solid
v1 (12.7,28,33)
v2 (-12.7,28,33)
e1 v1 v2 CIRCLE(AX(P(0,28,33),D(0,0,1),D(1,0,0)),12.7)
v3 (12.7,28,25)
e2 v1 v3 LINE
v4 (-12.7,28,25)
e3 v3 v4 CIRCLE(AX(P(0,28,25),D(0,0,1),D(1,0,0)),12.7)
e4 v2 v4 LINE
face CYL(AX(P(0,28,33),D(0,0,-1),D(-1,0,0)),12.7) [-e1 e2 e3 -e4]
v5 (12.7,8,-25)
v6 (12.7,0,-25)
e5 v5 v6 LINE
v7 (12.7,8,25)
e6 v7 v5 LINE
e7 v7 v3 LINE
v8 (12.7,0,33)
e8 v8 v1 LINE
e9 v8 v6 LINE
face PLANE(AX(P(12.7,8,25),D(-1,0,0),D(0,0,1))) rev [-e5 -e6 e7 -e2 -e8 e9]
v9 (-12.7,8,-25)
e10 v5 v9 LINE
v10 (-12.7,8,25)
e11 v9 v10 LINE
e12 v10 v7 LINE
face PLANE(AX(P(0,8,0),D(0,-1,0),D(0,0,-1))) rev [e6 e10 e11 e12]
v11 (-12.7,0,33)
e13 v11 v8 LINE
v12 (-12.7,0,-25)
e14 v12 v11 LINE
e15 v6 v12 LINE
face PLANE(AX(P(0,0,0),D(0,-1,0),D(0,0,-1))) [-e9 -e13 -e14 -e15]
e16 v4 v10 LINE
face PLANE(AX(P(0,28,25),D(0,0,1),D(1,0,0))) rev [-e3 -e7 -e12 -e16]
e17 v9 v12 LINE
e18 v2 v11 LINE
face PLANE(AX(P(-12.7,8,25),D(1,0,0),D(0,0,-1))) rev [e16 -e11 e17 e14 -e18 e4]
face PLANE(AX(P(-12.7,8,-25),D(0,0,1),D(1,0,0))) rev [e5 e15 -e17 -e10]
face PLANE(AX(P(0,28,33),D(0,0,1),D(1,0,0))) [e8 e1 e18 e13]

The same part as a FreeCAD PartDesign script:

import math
import FreeCAD as App
import Part
import Sketcher
from FreeCAD import Vector


def add_polygon(sketch, points):
    """Adds a closed chain of lines whose ends are joined by coincident constraints."""
    first, n = sketch.GeometryCount, len(points)
    for a, b in zip(points, points[1:] + points[:1]):
        sketch.addGeometry(Part.LineSegment(App.Vector(*a, 0), App.Vector(*b, 0)), False)
    for i in range(n):
        sketch.addConstraint(Sketcher.Constraint("Coincident", first + i, 2, first + (i + 1) % n, 1))

doc = App.newDocument("Part")
body = doc.addObject("PartDesign::Body", "Body")

# Sketch on XZ plane
sketch1 = body.newObject("Sketcher::SketchObject", "Sketch")
sketch1.AttachmentSupport = (doc.getObject("XZ_Plane"), [""])
sketch1.MapMode = "FlatFace"
add_polygon(sketch1, [(-13, -25), (-13, 25), (13, 25), (13, -25)])  # lines 0-3
sketch1.addConstraint(Sketcher.Constraint("Vertical", 0))
sketch1.addConstraint(Sketcher.Constraint("Horizontal", 1))
sketch1.addConstraint(Sketcher.Constraint("Vertical", 2))
sketch1.addConstraint(Sketcher.Constraint("Horizontal", 3))
sketch1.addConstraint(Sketcher.Constraint("Symmetric", 0, 2, 2, 2, -1, 1))
sketch1.addConstraint(Sketcher.Constraint("DistanceY", 0, 1, 0, 2, 50.0))
sketch1.addConstraint(Sketcher.Constraint("DistanceX", 1, 1, 1, 2, 25.4))
pad1 = body.newObject("PartDesign::Pad", "Pad")
pad1.Profile = sketch1
pad1.Length = 8
pad1.Reversed = True

# Sketch on XY plane
sketch2 = body.newObject("Sketcher::SketchObject", "Sketch001")
sketch2.AttachmentSupport = (doc.getObject("XY_Plane"), [""])
sketch2.MapMode = "FlatFace"
sketch2.AttachmentOffset = App.Placement(Vector(0, 0, 25), App.Rotation())
sketch2.addGeometry(Part.LineSegment(Vector(-13, 0, 0), Vector(13, 0, 0)), False)
sketch2.addGeometry(Part.LineSegment(Vector(13, 0, 0), Vector(13, 28, 0)), False)
sketch2.addGeometry(Part.ArcOfCircle(Part.Circle(Vector(0, 28, 0), Vector(0, 0, 1), 13), math.radians(0), math.radians(180)), False)
sketch2.addGeometry(Part.LineSegment(Vector(-13, 28, 0), Vector(-13, 0, 0)), False)
sketch2.addConstraint(Sketcher.Constraint("Coincident", 0, 2, 1, 1))
sketch2.addConstraint(Sketcher.Constraint("Tangent", 1, 2, 2, 1))
sketch2.addConstraint(Sketcher.Constraint("Tangent", 2, 2, 3, 1))
sketch2.addConstraint(Sketcher.Constraint("Coincident", 3, 2, 0, 1))
sketch2.addConstraint(Sketcher.Constraint("Horizontal", 0))
sketch2.addConstraint(Sketcher.Constraint("Vertical", 1))
sketch2.addConstraint(Sketcher.Constraint("Vertical", 3))
sketch2.addConstraint(Sketcher.Constraint("Symmetric", 0, 2, 3, 2, -1, 1))
sketch2.addConstraint(Sketcher.Constraint("Radius", 2, 12.7))
sketch2.addConstraint(Sketcher.Constraint("DistanceY", 1, 1, 1, 2, 28.0))
pad2 = body.newObject("PartDesign::Pad", "Pad001")
pad2.Profile = sketch2
pad2.Length = 8

doc.recompute()
